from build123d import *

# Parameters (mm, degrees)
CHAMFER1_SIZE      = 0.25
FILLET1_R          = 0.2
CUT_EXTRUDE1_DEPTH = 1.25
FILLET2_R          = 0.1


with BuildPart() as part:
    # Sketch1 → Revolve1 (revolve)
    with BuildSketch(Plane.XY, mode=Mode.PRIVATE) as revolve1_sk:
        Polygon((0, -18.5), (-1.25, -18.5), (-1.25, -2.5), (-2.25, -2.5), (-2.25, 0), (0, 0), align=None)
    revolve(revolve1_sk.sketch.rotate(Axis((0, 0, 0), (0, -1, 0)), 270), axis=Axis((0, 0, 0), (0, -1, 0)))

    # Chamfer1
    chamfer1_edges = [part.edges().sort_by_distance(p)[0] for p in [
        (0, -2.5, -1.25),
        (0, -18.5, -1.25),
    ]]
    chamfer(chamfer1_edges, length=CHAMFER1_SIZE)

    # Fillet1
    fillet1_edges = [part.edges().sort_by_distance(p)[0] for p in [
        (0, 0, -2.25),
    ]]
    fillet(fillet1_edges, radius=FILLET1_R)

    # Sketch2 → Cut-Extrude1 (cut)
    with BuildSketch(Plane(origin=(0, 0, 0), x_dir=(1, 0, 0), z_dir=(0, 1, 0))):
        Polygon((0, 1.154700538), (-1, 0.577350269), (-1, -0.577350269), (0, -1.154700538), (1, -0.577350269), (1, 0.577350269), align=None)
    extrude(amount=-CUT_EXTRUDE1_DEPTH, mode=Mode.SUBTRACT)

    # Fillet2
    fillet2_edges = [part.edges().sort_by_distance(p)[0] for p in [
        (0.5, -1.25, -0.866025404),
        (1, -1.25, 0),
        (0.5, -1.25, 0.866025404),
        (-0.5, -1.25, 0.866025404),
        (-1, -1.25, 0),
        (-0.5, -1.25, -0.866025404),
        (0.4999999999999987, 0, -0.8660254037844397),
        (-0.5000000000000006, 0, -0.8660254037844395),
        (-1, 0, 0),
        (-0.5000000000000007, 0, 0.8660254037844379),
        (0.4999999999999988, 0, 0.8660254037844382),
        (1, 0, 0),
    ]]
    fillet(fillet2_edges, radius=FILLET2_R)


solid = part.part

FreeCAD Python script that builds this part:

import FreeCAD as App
import Part
import Sketcher
Q = App.Units.Quantity


def edges_at(feature, points):
    """Names of the edges that pass closest to the given points."""
    edges = feature.Shape.Edges
    near = lambda p: min(range(len(edges)), key=lambda i: edges[i].distToShape(Part.Vertex(*p))[0])
    return sorted({f"Edge{near(p) + 1}" for p in points})

doc = App.newDocument("Part")
body = doc.addObject("PartDesign::Body", "Body")

sketch1 = doc.addObject("Sketcher::SketchObject", "Sketch")
body.addObject(sketch1)
sketch1.AttachmentSupport = (doc.XY_Plane, [""])
sketch1.MapMode = "FlatFace"
sketch1.addGeometry([
    Part.LineSegment(App.Vector(-1.2, -18.5, 0), App.Vector(0, -18.5, 0)),
    Part.LineSegment(App.Vector(0, -18.5, 0), App.Vector(0, 0, 0)),
    Part.LineSegment(App.Vector(0, 0, 0), App.Vector(-2.2, 0, 0)),
    Part.LineSegment(App.Vector(-2.2, 0, 0), App.Vector(-2.2, -2.5, 0)),
    Part.LineSegment(App.Vector(-2.2, -2.5, 0), App.Vector(-1.2, -2.5, 0)),
    Part.LineSegment(App.Vector(-1.2, -2.5, 0), App.Vector(-1.2, -18.5, 0)),
], False)
sketch1.addConstraint([
    Sketcher.Constraint("Coincident", 0, 2, 1, 1),
    Sketcher.Constraint("Coincident", 1, 2, 2, 1),
    Sketcher.Constraint("Coincident", 2, 2, 3, 1),
    Sketcher.Constraint("Coincident", 3, 2, 4, 1),
    Sketcher.Constraint("Coincident", 4, 2, 5, 1),
    Sketcher.Constraint("Coincident", 5, 2, 0, 1),
    Sketcher.Constraint("Horizontal", 0),
    Sketcher.Constraint("Vertical", 1),
    Sketcher.Constraint("Horizontal", 2),
    Sketcher.Constraint("Vertical", 3),
    Sketcher.Constraint("Horizontal", 4),
    Sketcher.Constraint("Vertical", 5),
    Sketcher.Constraint("Coincident", 1, 2, -1, 1),
    Sketcher.Constraint("DistanceX", 4, 1, 4, 2, Q("1 mm")),
    Sketcher.Constraint("DistanceY", 5, 2, 5, 1, Q("16 mm")),
    Sketcher.Constraint("DistanceY", 1, 1, 1, 2, Q("18.5 mm")),
    Sketcher.Constraint("DistanceX", 0, 1, 0, 2, Q("1.25 mm")),
])
revolution = doc.addObject("PartDesign::Revolution", "Revolution")
body.addObject(revolution)
revolution.Profile = sketch1
revolution.ReferenceAxis = (sketch1, ["V_Axis"])
revolution.Angle = 360
doc.recompute()

chamfer = doc.addObject("PartDesign::Chamfer", "Chamfer")
body.addObject(chamfer)
chamfer.Base = (revolution, edges_at(revolution, [(0, -2.5, -1.25), (0, -18.5, -1.25)]))
chamfer.Size = 0.25
doc.recompute()

fillet = doc.addObject("PartDesign::Fillet", "Fillet")
body.addObject(fillet)
fillet.Base = (chamfer, edges_at(chamfer, [(0, 0, -2.25)]))
fillet.Radius = 0.2

sketch2 = doc.addObject("Sketcher::SketchObject", "Sketch001")
body.addObject(sketch2)
sketch2.AttachmentSupport = (doc.XZ_Plane, [""])
sketch2.MapMode = "FlatFace"
sketch2.addGeometry([
    Part.LineSegment(App.Vector(0, -1.2, 0), App.Vector(-1, -0.6, 0)),
    Part.LineSegment(App.Vector(-1, -0.6, 0), App.Vector(-1, 0.6, 0)),
    Part.LineSegment(App.Vector(-1, 0.6, 0), App.Vector(0, 1.2, 0)),
    Part.LineSegment(App.Vector(0, 1.2, 0), App.Vector(1, 0.6, 0)),
    Part.LineSegment(App.Vector(1, 0.6, 0), App.Vector(1, -0.6, 0)),
    Part.LineSegment(App.Vector(1, -0.6, 0), App.Vector(0, -1.2, 0)),
], False)
sketch2.addConstraint([
    Sketcher.Constraint("Coincident", 0, 2, 1, 1),
    Sketcher.Constraint("Coincident", 1, 2, 2, 1),
    Sketcher.Constraint("Coincident", 2, 2, 3, 1),
    Sketcher.Constraint("Coincident", 3, 2, 4, 1),
    Sketcher.Constraint("Coincident", 4, 2, 5, 1),
    Sketcher.Constraint("Coincident", 5, 2, 0, 1),
    Sketcher.Constraint("Vertical", 1),
    Sketcher.Constraint("Vertical", 4),
    Sketcher.Constraint("Symmetric", 0, 2, 3, 2, -1, 1),
    Sketcher.Constraint("Symmetric", 2, 2, 5, 2, -1, 1),
    Sketcher.Constraint("PointOnObject", 2, 2, -2),
    Sketcher.Constraint("Parallel", 2, 5),
    Sketcher.Constraint("Horizontal", 1, 2, 3, 2),
    Sketcher.Constraint("Angle", 0, Q("150 deg")),
    Sketcher.Constraint("DistanceX", 0, 2, -1, 1, Q("1 mm")),
    Sketcher.Constraint("DistanceY", 1, 1, 1, 2, Q("1.154701 mm")),
])
pocket1 = doc.addObject("PartDesign::Pocket", "Pocket")
body.addObject(pocket1)
pocket1.Profile = sketch2
pocket1.Length = 1.25
pocket1.Reversed = True
doc.recompute()

fillet2 = doc.addObject("PartDesign::Fillet", "Fillet001")
body.addObject(fillet2)
fillet2.Base = (pocket1, edges_at(pocket1, [
    (0.5, -1.25, -0.866),
    (1, -1.25, 0),
    (0.5, -1.25, 0.866),
    (-0.5, -1.25, 0.866),
    (-1, -1.25, 0),
    (-0.5, -1.25, -0.866),
    (0.5, 0, -0.866),
    (-0.5, 0, -0.866),
    (-1, 0, 0),
    (-0.5, 0, 0.866),
    (0.5, 0, 0.866),
    (1, 0, 0),
]))
fillet2.Radius = 0.1

doc.recompute()
